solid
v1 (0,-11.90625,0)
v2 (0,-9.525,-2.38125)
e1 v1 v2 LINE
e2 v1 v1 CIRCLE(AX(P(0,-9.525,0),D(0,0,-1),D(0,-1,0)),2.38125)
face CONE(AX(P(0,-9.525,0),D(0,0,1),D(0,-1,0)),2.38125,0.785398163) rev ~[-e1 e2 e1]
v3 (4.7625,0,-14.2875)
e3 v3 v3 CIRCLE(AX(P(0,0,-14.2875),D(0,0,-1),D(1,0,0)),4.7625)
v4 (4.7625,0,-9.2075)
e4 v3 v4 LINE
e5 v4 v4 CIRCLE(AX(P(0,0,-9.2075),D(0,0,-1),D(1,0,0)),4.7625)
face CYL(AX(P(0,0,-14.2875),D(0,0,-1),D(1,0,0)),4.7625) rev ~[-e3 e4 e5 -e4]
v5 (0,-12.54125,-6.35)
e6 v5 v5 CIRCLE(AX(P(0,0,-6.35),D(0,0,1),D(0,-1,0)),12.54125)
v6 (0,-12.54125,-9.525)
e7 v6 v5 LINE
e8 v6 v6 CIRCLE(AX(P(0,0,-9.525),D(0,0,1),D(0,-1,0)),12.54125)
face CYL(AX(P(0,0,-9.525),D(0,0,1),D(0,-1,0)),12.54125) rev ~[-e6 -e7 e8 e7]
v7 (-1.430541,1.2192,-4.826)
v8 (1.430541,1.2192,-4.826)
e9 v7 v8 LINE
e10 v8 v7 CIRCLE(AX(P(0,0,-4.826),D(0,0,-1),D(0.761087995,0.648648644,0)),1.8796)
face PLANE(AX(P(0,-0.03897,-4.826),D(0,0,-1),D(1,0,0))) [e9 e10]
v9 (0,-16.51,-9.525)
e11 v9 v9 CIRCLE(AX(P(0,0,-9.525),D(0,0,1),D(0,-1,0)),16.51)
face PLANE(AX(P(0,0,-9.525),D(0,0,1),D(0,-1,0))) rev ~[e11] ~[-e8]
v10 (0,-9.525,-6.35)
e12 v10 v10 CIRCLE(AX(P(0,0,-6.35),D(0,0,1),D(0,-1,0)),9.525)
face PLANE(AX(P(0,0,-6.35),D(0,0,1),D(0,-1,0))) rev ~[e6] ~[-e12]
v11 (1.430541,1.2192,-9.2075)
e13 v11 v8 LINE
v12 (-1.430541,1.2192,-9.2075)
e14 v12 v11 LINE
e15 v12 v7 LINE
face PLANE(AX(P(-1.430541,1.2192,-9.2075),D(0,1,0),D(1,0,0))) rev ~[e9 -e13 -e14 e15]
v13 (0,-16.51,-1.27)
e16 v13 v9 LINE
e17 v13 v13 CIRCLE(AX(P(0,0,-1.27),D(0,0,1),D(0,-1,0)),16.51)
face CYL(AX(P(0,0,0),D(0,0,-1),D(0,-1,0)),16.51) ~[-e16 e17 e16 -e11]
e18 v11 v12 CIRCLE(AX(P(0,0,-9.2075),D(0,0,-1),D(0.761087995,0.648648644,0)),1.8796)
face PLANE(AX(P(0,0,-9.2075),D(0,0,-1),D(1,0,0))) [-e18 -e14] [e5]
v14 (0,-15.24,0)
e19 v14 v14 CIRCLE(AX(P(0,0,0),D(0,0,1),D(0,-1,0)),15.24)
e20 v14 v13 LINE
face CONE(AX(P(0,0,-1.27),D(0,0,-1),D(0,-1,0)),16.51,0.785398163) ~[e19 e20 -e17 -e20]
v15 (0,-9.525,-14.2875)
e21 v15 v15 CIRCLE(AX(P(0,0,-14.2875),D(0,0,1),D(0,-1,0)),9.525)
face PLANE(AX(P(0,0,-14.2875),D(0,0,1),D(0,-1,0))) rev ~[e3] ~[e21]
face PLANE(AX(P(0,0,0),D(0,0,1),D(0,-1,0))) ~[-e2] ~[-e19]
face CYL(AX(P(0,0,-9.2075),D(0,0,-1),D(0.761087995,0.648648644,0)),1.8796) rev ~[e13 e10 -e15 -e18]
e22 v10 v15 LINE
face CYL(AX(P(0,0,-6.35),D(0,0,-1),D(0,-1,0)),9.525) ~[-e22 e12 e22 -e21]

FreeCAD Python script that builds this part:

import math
import FreeCAD as App
import Part
import Sketcher

V = App.Vector
Q = App.Units.Quantity


def edges_at(feature, points):
    """Names of the edges that pass closest to the given points."""
    edges = feature.Shape.Edges
    near = lambda p: min(range(len(edges)), key=lambda i: edges[i].distToShape(Part.Vertex(*p))[0])
    return sorted({f"Edge{near(p) + 1}" for p in points})


def add_polygon(sketch, points):
    """Adds a closed chain of lines whose ends are joined by coincident constraints."""
    first, n = sketch.GeometryCount, len(points)
    for a, b in zip(points, points[1:] + points[:1]):
        sketch.addGeometry(Part.LineSegment(App.Vector(*a, 0), App.Vector(*b, 0)), False)
    for i in range(n):
        sketch.addConstraint(Sketcher.Constraint("Coincident", first + i, 2, first + (i + 1) % n, 1))

doc = App.newDocument("Part")
body = doc.addObject("PartDesign::Body", "Body")

sketch1 = body.newObject("Sketcher::SketchObject", "Sketch")
sketch1.AttachmentSupport = (doc.getObject("YZ_Plane"), [""])
sketch1.MapMode = "FlatFace"
add_polygon(sketch1, [(0, -14.3), (0, 0), (-16.5, 0), (-16.5, -9.5), (-12.5, -9.5), (-12.5, -6.3), (-9.5, -6.3), (-9.5, -14.3)])
sketch1.addConstraint([
    Sketcher.Constraint("Vertical", 0),
    Sketcher.Constraint("Horizontal", 1),
    Sketcher.Constraint("Vertical", 2),
    Sketcher.Constraint("Horizontal", 3),
    Sketcher.Constraint("Vertical", 4),
    Sketcher.Constraint("Horizontal", 5),
    Sketcher.Constraint("Vertical", 6),
    Sketcher.Constraint("Horizontal", 7),
    Sketcher.Constraint("Coincident", 0, 2, -1, 1),
    Sketcher.Constraint("Equal", 7, 2),
    Sketcher.Constraint("DistanceX", 1, 2, 1, 1, Q("0.65 in")),
    Sketcher.Constraint("DistanceX", 3, 1, 3, 2, Q("0.15625 in")),
    Sketcher.Constraint("DistanceX", 7, 1, 7, 2, Q("0.375 in")),
    Sketcher.Constraint("DistanceY", 0, 1, 0, 2, Q("0.5625 in")),
    Sketcher.Constraint("DistanceY", 4, 1, 4, 2, Q("0.125 in")),
])
revolution = body.newObject("PartDesign::Revolution", "Revolution")
revolution.Profile = sketch1
revolution.ReferenceAxis = (sketch1, ["V_Axis"])
revolution.Angle = 360

sketch2 = body.newObject("Sketcher::SketchObject", "Sketch001")
sketch2.AttachmentSupport = (doc.getObject("XY_Plane"), [""])
sketch2.MapMode = "FlatFace"
sketch2.AttachmentOffset = App.Placement(V(0, 0, -0.5625 * 25.4), App.Rotation())
sketch2.addGeometry([
    Part.LineSegment(V(-1.4, 1.1, 0), V(1.4, 1.1, 0)),
    Part.ArcOfCircle(Part.Circle(V(0, 0, 0), V(0, 0, 1), 1.8), math.radians(141), math.radians(399)),
], False)
sketch2.addConstraint([
    Sketcher.Constraint("Coincident", 0, 1, 1, 1),
    Sketcher.Constraint("Coincident", 1, 2, 0, 2),
    Sketcher.Constraint("Horizontal", 0),
    Sketcher.Constraint("Coincident", 1, 3, -1, 1),
    Sketcher.Constraint("Radius", 1, Q("0.071 in")),
    Sketcher.Constraint("DistanceY", -1, 1, 0, 1, Q("0.045 in")),
])
pocket1 = body.newObject("PartDesign::Pocket", "Pocket")
pocket1.Profile = sketch2
pocket1.Length = Q("0.3725 in")
pocket1.Reversed = True

sketch3 = body.newObject("Sketcher::SketchObject", "Sketch002")
sketch3.AttachmentSupport = (doc.getObject("YZ_Plane"), [""])
sketch3.MapMode = "FlatFace"
add_polygon(sketch3, [(-9.5, 0), (-11.9, 0), (-9.5, -2.4)])
sketch3.addGeometry(Part.LineSegment(V(-9.5, 0, 0), V(-9.5, -2.4, 0)), True)
sketch3.addConstraint([
    Sketcher.Constraint("Horizontal", 0),
    Sketcher.Constraint("Vertical", 2),
    Sketcher.Constraint("Vertical", 3),
    Sketcher.Constraint("Coincident", 3, 1, 2, 2),
    Sketcher.Constraint("PointOnObject", 0, 2, -1),
    Sketcher.Constraint("Equal", 0, 2),
    Sketcher.Constraint("Equal", 2, 3),
    Sketcher.Constraint("DistanceX", 0, 2, 0, 1, Q("0.09375 in")),
    Sketcher.Constraint("DistanceX", 0, 2, -1, 1, Q("0.46875 in")),
])
groove = body.newObject("PartDesign::Groove", "Groove")
groove.Profile = sketch3
groove.ReferenceAxis = (sketch3, ["Axis0"])
groove.Angle = 360
doc.recompute()

chamfer = body.newObject("PartDesign::Chamfer", "Chamfer")
chamfer.Base = (groove, edges_at(groove, [(0, 16.51, 0)]))
chamfer.Size = Q("0.05 in")

sketch4 = body.newObject("Sketcher::SketchObject", "Sketch003")
sketch4.AttachmentSupport = (doc.getObject("XY_Plane"), [""])
sketch4.MapMode = "FlatFace"
sketch4.AttachmentOffset = App.Placement(V(0, 0, -0.5625 * 25.4), App.Rotation())
sketch4.addGeometry(Part.Circle(V(0, 0, 0), V(0, 0, 1), 4.8), False)
sketch4.addConstraint([
    Sketcher.Constraint("Coincident", 0, 3, -1, 1),
    Sketcher.Constraint("Diameter", 0, Q("0.375 in")),
])
pocket2 = body.newObject("PartDesign::Pocket", "Pocket001")
pocket2.Profile = sketch4
pocket2.Length = Q("0.2 in")
pocket2.Reversed = True

sketch5 = body.newObject("Sketcher::SketchObject", "Sketch004")
sketch5.AttachmentSupport = (doc.getObject("XY_Plane"), [""])
sketch5.MapMode = "FlatFace"
sketch5.AttachmentOffset = App.Placement(V(0, 0, -0.3625 * 25.4), App.Rotation())
sketch5.addGeometry([
    Part.LineSegment(V(-1.4, 1.2, 0), V(1.4, 1.2, 0)),
    Part.ArcOfCircle(Part.Circle(V(0, 0, 0), V(0, 0, 1), 1.9), math.radians(140), math.radians(400)),
], False)
sketch5.addConstraint([
    Sketcher.Constraint("Coincident", 0, 1, 1, 1),
    Sketcher.Constraint("Coincident", 1, 2, 0, 2),
    Sketcher.Constraint("Horizontal", 0),
    Sketcher.Constraint("Coincident", 1, 3, -1, 1),
    Sketcher.Constraint("Radius", 1, Q("0.074 in")),
    Sketcher.Constraint("DistanceY", -1, 1, 0, 1, Q("0.048 in")),
])
pocket3 = body.newObject("PartDesign::Pocket", "Pocket002")
pocket3.Profile = sketch5
pocket3.Length = Q("0.1725 in")
pocket3.Reversed = True

doc.recompute()
